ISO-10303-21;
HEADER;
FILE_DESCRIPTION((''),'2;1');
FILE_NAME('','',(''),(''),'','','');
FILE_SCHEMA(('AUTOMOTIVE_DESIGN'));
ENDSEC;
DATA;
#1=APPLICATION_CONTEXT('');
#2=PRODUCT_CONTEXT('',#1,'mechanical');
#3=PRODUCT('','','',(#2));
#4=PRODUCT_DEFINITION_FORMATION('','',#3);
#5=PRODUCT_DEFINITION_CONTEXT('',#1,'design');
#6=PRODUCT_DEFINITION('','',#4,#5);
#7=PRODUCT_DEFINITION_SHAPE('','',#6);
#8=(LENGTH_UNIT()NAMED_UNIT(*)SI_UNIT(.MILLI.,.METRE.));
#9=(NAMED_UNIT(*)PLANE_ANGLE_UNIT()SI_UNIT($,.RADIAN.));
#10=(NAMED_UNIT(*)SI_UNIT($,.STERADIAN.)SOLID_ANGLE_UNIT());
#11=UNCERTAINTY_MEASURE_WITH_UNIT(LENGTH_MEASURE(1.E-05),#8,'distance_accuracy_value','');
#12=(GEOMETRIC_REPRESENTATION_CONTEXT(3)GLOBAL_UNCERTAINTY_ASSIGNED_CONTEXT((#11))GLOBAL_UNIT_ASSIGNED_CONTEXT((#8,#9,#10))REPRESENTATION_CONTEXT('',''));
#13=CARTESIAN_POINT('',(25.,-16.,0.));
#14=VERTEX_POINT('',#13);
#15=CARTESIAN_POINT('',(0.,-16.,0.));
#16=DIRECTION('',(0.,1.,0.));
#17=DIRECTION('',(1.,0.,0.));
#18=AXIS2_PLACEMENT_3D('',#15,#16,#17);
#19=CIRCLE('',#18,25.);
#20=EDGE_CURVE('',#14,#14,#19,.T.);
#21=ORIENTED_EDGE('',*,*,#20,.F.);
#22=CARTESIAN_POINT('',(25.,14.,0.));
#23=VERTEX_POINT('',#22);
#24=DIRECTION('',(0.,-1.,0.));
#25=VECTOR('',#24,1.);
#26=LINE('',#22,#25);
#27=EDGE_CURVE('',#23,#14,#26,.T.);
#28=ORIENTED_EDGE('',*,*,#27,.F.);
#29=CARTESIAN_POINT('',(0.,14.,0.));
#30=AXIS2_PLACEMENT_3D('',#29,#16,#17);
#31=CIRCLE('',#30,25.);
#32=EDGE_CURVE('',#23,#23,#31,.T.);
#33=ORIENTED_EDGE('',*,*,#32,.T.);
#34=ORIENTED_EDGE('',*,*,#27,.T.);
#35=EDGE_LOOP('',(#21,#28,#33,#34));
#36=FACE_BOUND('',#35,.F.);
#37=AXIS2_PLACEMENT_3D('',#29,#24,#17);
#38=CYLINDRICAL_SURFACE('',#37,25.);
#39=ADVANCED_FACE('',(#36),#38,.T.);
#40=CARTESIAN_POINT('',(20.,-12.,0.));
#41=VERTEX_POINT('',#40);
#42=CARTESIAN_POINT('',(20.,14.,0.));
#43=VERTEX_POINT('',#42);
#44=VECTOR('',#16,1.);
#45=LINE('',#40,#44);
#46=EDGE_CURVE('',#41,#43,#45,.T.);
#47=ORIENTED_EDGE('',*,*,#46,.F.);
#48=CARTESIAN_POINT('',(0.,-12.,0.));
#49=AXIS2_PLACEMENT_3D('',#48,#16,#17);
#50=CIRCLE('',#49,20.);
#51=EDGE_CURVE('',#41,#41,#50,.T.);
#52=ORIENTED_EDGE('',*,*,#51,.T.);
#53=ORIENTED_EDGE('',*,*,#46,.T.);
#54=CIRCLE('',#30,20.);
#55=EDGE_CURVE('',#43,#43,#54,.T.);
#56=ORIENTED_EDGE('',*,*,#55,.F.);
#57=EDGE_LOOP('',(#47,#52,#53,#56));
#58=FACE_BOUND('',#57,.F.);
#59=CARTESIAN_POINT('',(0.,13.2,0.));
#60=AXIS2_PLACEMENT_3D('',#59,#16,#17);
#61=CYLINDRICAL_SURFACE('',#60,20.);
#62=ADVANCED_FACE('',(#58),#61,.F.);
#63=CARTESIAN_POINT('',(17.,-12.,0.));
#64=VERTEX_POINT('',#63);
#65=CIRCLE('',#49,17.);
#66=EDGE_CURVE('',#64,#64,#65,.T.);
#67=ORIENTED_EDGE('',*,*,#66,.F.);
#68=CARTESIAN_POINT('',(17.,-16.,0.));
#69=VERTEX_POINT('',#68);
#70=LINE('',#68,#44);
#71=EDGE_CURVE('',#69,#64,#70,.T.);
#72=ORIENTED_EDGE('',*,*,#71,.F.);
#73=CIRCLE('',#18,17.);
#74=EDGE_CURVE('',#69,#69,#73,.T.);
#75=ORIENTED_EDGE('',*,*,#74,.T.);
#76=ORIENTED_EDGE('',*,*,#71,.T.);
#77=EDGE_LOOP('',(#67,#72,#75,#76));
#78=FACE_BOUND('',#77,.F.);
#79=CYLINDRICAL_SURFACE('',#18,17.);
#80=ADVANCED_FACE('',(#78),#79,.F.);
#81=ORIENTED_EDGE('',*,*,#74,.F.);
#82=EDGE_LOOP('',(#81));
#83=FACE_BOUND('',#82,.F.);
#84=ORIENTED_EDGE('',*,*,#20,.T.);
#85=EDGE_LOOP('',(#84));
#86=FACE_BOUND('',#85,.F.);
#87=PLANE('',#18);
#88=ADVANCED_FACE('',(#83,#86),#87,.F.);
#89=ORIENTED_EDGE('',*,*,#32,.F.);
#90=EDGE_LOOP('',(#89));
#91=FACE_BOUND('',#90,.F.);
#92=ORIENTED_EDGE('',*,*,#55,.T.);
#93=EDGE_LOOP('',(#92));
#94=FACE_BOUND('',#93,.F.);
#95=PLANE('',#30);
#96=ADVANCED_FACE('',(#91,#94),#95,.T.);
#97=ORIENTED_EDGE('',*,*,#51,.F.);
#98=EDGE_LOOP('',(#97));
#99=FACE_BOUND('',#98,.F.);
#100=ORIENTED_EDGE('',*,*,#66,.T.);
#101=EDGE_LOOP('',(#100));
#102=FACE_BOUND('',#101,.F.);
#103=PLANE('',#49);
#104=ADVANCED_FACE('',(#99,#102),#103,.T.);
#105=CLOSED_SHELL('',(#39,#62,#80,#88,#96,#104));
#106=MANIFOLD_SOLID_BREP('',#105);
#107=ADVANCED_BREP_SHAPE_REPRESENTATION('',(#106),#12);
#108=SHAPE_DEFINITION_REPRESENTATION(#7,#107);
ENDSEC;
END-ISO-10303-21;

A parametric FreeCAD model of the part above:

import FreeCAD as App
import Part
import Sketcher
from FreeCAD import Vector


def add_polygon(sketch, points):
    """Adds a closed chain of lines whose ends are joined by coincident constraints."""
    first, n = sketch.GeometryCount, len(points)
    for a, b in zip(points, points[1:] + points[:1]):
        sketch.addGeometry(Part.LineSegment(App.Vector(*a, 0), App.Vector(*b, 0)), False)
    for i in range(n):
        sketch.addConstraint(Sketcher.Constraint("Coincident", first + i, 2, first + (i + 1) % n, 1))

doc = App.newDocument("Part")
body = doc.addObject("PartDesign::Body", "Body")

sketch1 = body.newObject("Sketcher::SketchObject", "Sketch")
sketch1.AttachmentSupport = (doc.getObject("XY_Plane"), [""])
sketch1.MapMode = "FlatFace"
add_polygon(sketch1, [(25, 14), (20, 14), (20, -12), (17, -12), (17, -16), (25, -16)])
sketch1.addConstraint(Sketcher.Constraint("Horizontal", 0))
sketch1.addConstraint(Sketcher.Constraint("Vertical", 1))
sketch1.addConstraint(Sketcher.Constraint("Horizontal", 2))
sketch1.addConstraint(Sketcher.Constraint("Vertical", 3))
sketch1.addConstraint(Sketcher.Constraint("Horizontal", 4))
sketch1.addConstraint(Sketcher.Constraint("Vertical", 5))
sketch1.addConstraint(Sketcher.Constraint("DistanceX", 0, 2, 0, 1, 5.0))
sketch1.addConstraint(Sketcher.Constraint("DistanceX", 2, 2, 2, 1, 3.0))
sketch1.addConstraint(Sketcher.Constraint("DistanceY", 3, 2, 3, 1, 4.0))
sketch1.addConstraint(Sketcher.Constraint("DistanceY", 5, 1, 5, 2, 30.0))
sketch1.addConstraint(Sketcher.Constraint("DistanceY", -1, 1, 0, 2, 14.0))
sketch1.addConstraint(Sketcher.Constraint("DistanceX", -1, 1, 4, 2, 25.0))
revolution = body.newObject("PartDesign::Revolution", "Revolution")
revolution.Profile = sketch1
revolution.ReferenceAxis = (sketch1, ["V_Axis"])
revolution.Angle = 360

doc.recompute()
